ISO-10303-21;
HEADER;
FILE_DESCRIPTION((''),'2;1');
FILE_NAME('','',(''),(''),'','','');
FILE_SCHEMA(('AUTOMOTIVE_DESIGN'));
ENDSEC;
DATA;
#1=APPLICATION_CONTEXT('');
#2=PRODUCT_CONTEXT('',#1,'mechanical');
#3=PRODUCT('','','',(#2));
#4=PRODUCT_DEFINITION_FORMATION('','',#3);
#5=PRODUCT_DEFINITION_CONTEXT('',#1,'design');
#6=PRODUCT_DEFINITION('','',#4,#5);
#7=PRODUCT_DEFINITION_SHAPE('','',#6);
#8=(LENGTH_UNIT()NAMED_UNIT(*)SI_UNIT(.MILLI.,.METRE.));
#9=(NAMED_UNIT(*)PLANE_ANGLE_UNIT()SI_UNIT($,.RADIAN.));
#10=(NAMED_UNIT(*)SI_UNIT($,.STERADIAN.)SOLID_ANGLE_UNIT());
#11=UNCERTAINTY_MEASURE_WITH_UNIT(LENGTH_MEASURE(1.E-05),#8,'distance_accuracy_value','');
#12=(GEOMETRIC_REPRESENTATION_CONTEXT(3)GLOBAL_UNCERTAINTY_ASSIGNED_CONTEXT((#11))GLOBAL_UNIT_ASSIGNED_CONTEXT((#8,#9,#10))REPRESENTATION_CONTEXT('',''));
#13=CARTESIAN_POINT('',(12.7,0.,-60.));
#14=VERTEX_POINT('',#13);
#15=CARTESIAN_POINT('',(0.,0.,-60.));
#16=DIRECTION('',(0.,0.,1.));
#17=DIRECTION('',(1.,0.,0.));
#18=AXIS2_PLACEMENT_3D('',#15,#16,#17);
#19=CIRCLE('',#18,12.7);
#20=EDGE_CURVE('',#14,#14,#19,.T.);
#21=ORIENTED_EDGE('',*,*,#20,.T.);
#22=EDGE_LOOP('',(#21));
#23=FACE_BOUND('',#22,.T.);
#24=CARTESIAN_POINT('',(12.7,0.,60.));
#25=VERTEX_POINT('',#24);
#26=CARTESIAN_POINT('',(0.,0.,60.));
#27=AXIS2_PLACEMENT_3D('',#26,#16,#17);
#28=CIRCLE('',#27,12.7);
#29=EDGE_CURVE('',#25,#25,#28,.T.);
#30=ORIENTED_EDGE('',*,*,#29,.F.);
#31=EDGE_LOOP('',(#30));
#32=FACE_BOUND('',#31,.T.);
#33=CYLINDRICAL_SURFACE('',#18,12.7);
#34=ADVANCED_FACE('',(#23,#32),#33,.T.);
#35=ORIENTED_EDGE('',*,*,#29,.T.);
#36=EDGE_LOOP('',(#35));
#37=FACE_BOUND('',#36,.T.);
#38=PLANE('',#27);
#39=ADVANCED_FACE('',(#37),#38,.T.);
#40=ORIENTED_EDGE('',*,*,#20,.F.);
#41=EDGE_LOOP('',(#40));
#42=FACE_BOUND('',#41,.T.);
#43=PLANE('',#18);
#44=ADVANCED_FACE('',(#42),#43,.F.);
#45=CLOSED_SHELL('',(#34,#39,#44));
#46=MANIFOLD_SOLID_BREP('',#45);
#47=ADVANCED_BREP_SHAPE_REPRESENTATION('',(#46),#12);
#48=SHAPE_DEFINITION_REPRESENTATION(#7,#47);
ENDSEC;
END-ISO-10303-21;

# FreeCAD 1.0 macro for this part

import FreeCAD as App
import Part
import Sketcher
Q = App.Units.Quantity

doc = App.newDocument("Part")
body = doc.addObject("PartDesign::Body", "Body")

sketch1 = body.newObject("Sketcher::SketchObject", "Sketch")
sketch1.AttachmentSupport = (doc.getObject("XY_Plane"), [""])
sketch1.MapMode = "FlatFace"
sketch1.addGeometry(Part.Circle(App.Vector(0, 0, 0), App.Vector(0, 0, 1), 13), False)
sketch1.addConstraint([
    Sketcher.Constraint("Coincident", 0, 3, -1, 1),
    Sketcher.Constraint("Diameter", 0, Q("25.4 mm")),
])
pad1 = body.newObject("PartDesign::Pad", "Pad")
pad1.Profile = sketch1
pad1.Type = "TwoLengths"
pad1.Length = 60
pad1.Length2 = 60

doc.recompute()
